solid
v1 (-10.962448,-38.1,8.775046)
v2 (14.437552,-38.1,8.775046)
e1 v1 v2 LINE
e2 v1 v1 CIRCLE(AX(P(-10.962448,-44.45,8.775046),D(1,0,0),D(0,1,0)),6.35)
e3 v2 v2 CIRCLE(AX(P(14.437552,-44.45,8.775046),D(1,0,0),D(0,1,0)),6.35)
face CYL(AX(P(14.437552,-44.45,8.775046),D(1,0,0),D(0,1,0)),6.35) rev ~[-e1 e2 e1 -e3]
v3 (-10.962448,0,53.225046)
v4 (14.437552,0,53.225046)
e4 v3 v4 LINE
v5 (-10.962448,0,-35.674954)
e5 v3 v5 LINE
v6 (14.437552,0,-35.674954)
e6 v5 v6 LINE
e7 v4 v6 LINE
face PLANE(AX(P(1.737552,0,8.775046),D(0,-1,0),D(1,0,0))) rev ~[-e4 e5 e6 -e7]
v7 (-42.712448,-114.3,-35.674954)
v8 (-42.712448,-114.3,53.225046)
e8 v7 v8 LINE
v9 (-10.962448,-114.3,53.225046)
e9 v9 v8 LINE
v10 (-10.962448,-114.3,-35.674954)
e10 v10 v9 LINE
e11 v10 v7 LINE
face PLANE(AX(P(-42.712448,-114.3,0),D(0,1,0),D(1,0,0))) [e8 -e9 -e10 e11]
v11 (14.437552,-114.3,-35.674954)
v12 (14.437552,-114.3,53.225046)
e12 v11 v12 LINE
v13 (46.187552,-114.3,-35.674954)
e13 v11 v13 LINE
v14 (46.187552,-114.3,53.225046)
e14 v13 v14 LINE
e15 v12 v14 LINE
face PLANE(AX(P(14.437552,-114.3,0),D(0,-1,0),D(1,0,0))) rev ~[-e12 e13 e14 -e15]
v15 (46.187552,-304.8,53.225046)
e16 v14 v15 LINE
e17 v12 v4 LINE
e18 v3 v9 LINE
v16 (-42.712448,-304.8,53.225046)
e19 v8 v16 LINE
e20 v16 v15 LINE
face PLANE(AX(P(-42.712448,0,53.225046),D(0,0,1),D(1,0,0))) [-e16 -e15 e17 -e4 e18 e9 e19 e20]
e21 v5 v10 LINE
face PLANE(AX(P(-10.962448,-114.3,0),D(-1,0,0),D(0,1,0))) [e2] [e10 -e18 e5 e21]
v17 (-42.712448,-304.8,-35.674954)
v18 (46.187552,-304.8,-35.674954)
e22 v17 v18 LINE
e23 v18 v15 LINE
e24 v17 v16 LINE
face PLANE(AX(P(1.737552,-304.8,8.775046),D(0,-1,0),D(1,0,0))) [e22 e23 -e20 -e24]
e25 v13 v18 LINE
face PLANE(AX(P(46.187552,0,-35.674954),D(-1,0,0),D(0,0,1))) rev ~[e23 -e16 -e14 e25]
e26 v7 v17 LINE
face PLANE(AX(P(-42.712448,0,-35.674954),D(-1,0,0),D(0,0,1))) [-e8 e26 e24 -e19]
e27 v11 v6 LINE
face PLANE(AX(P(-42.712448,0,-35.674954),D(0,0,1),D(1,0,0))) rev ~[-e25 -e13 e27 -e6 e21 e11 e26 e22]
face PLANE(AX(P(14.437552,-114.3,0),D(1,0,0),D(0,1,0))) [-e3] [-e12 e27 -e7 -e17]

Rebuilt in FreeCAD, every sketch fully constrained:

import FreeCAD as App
import Part
import Sketcher

V = App.Vector
Q = App.Units.Quantity

doc = App.newDocument("Part")
params = doc.addObject("Spreadsheet::Sheet", "Params")
for row, (alias, value) in enumerate([
    ("sketch1_width", "3.5 in"),
    ("pad1_length", "12 in"),
    ("sketch2_height", "4.5 in"),
    ("sketch2_width", "1.25 in"),
    ("pocket1_length", "10 in"),
    ("sketch3_diameter", "0.5 in"),
    ("pocket2_length", "10 in"),
], start=1):
    params.set(f"A{row}", alias)
    params.set(f"B{row}", "=" + value)
    params.setAlias(f"B{row}", alias)

body = doc.addObject("PartDesign::Body", "Body")

sketch1 = body.newObject("Sketcher::SketchObject", "Sketch")
sketch1.AttachmentSupport = (doc.getObject("XZ_Plane"), [""])
sketch1.MapMode = "FlatFace"
sketch1.addGeometry([
    Part.LineSegment(V(-43, 53, 0), V(-43, -36, 0)),
    Part.LineSegment(V(-43, -36, 0), V(46, -36, 0)),
    Part.LineSegment(V(46, -36, 0), V(46, 53, 0)),
    Part.LineSegment(V(46, 53, 0), V(-43, 53, 0)),
], False)
sketch1.addConstraint([
    Sketcher.Constraint("Coincident", 0, 2, 1, 1),
    Sketcher.Constraint("Coincident", 1, 2, 2, 1),
    Sketcher.Constraint("Coincident", 2, 2, 3, 1),
    Sketcher.Constraint("Coincident", 3, 2, 0, 1),
    Sketcher.Constraint("Vertical", 0),
    Sketcher.Constraint("Horizontal", 1),
    Sketcher.Constraint("Vertical", 2),
    Sketcher.Constraint("Horizontal", 3),
    Sketcher.Constraint("Equal", 3, 0),
    Sketcher.Constraint("DistanceX", 1, 1, 1, 2, Q("3.5 in")),
    Sketcher.Constraint("DistanceX", 0, 2, -1, 1, 42.712448),
    Sketcher.Constraint("DistanceY", 0, 2, -1, 1, 35.674954),
])
sketch1.setExpression("Constraints[9]", "Params.sketch1_width")
pad1 = body.newObject("PartDesign::Pad", "Pad")
pad1.Profile = sketch1
pad1.setExpression("Length", "Params.pad1_length")

sketch2 = body.newObject("Sketcher::SketchObject", "Sketch001")
sketch2.AttachmentSupport = (doc.getObject("XY_Plane"), [""])
sketch2.MapMode = "FlatFace"
sketch2.addGeometry([
    Part.LineSegment(V(-43, 0, 0), V(-43, -114, 0)),
    Part.LineSegment(V(-43, -114, 0), V(-11, -114, 0)),
    Part.LineSegment(V(-11, -114, 0), V(-11, 0, 0)),
    Part.LineSegment(V(-11, 0, 0), V(-43, 0, 0)),
    Part.LineSegment(V(14, 0, 0), V(14, -114, 0)),
    Part.LineSegment(V(14, -114, 0), V(46, -114, 0)),
    Part.LineSegment(V(46, -114, 0), V(46, 0, 0)),
    Part.LineSegment(V(46, 0, 0), V(14, 0, 0)),
], False)
sketch2.addConstraint([
    Sketcher.Constraint("Coincident", 0, 2, 1, 1),
    Sketcher.Constraint("Coincident", 1, 2, 2, 1),
    Sketcher.Constraint("Coincident", 2, 2, 3, 1),
    Sketcher.Constraint("Coincident", 3, 2, 0, 1),
    Sketcher.Constraint("Coincident", 4, 2, 5, 1),
    Sketcher.Constraint("Coincident", 5, 2, 6, 1),
    Sketcher.Constraint("Coincident", 6, 2, 7, 1),
    Sketcher.Constraint("Coincident", 7, 2, 4, 1),
    Sketcher.Constraint("Vertical", 0),
    Sketcher.Constraint("Horizontal", 1),
    Sketcher.Constraint("Vertical", 2),
    Sketcher.Constraint("Horizontal", 3),
    Sketcher.Constraint("Vertical", 4),
    Sketcher.Constraint("Horizontal", 5),
    Sketcher.Constraint("Vertical", 6),
    Sketcher.Constraint("Horizontal", 7),
    Sketcher.Constraint("PointOnObject", 2, 2, -1),
    Sketcher.Constraint("PointOnObject", 6, 2, -1),
    Sketcher.Constraint("Horizontal", 1, 2, 4, 2),
    Sketcher.Constraint("Equal", 3, 5),
    Sketcher.Constraint("DistanceY", 0, 2, 0, 1, Q("4.5 in")),
    Sketcher.Constraint("DistanceX", 1, 2, 4, 2, Q("1 in")),
    Sketcher.Constraint("DistanceX", 1, 1, 1, 2, Q("1.25 in")),
    Sketcher.Constraint("DistanceX", 0, 2, -1, 1, 42.712448),
])
sketch2.setExpression("Constraints[20]", "Params.sketch2_height")
sketch2.setExpression("Constraints[22]", "Params.sketch2_width")
pocket1 = body.newObject("PartDesign::Pocket", "Pocket")
pocket1.Profile = sketch2
pocket1.setExpression("Length", "Params.pocket1_length")
pocket1.Midplane = True

sketch3 = body.newObject("Sketcher::SketchObject", "Sketch002")
sketch3.AttachmentSupport = (doc.getObject("YZ_Plane"), [""])
sketch3.MapMode = "FlatFace"
sketch3.AttachmentOffset = App.Placement(V(0, 0, 14.437552), App.Rotation())
sketch3.addGeometry(Part.Circle(V(-44, 9, 0), V(0, 0, 1), 6), False)
sketch3.addConstraint([
    Sketcher.Constraint("Diameter", 0, Q("0.5 in")),
    Sketcher.Constraint("DistanceX", 0, 3, -1, 1, Q("1.75 in")),
    Sketcher.Constraint("DistanceY", -1, 1, 0, 3, 8.775046),
])
sketch3.setExpression("Constraints[0]", "Params.sketch3_diameter")
pocket2 = body.newObject("PartDesign::Pocket", "Pocket001")
pocket2.Profile = sketch3
pocket2.setExpression("Length", "Params.pocket2_length")
pocket2.Midplane = True

doc.recompute()
